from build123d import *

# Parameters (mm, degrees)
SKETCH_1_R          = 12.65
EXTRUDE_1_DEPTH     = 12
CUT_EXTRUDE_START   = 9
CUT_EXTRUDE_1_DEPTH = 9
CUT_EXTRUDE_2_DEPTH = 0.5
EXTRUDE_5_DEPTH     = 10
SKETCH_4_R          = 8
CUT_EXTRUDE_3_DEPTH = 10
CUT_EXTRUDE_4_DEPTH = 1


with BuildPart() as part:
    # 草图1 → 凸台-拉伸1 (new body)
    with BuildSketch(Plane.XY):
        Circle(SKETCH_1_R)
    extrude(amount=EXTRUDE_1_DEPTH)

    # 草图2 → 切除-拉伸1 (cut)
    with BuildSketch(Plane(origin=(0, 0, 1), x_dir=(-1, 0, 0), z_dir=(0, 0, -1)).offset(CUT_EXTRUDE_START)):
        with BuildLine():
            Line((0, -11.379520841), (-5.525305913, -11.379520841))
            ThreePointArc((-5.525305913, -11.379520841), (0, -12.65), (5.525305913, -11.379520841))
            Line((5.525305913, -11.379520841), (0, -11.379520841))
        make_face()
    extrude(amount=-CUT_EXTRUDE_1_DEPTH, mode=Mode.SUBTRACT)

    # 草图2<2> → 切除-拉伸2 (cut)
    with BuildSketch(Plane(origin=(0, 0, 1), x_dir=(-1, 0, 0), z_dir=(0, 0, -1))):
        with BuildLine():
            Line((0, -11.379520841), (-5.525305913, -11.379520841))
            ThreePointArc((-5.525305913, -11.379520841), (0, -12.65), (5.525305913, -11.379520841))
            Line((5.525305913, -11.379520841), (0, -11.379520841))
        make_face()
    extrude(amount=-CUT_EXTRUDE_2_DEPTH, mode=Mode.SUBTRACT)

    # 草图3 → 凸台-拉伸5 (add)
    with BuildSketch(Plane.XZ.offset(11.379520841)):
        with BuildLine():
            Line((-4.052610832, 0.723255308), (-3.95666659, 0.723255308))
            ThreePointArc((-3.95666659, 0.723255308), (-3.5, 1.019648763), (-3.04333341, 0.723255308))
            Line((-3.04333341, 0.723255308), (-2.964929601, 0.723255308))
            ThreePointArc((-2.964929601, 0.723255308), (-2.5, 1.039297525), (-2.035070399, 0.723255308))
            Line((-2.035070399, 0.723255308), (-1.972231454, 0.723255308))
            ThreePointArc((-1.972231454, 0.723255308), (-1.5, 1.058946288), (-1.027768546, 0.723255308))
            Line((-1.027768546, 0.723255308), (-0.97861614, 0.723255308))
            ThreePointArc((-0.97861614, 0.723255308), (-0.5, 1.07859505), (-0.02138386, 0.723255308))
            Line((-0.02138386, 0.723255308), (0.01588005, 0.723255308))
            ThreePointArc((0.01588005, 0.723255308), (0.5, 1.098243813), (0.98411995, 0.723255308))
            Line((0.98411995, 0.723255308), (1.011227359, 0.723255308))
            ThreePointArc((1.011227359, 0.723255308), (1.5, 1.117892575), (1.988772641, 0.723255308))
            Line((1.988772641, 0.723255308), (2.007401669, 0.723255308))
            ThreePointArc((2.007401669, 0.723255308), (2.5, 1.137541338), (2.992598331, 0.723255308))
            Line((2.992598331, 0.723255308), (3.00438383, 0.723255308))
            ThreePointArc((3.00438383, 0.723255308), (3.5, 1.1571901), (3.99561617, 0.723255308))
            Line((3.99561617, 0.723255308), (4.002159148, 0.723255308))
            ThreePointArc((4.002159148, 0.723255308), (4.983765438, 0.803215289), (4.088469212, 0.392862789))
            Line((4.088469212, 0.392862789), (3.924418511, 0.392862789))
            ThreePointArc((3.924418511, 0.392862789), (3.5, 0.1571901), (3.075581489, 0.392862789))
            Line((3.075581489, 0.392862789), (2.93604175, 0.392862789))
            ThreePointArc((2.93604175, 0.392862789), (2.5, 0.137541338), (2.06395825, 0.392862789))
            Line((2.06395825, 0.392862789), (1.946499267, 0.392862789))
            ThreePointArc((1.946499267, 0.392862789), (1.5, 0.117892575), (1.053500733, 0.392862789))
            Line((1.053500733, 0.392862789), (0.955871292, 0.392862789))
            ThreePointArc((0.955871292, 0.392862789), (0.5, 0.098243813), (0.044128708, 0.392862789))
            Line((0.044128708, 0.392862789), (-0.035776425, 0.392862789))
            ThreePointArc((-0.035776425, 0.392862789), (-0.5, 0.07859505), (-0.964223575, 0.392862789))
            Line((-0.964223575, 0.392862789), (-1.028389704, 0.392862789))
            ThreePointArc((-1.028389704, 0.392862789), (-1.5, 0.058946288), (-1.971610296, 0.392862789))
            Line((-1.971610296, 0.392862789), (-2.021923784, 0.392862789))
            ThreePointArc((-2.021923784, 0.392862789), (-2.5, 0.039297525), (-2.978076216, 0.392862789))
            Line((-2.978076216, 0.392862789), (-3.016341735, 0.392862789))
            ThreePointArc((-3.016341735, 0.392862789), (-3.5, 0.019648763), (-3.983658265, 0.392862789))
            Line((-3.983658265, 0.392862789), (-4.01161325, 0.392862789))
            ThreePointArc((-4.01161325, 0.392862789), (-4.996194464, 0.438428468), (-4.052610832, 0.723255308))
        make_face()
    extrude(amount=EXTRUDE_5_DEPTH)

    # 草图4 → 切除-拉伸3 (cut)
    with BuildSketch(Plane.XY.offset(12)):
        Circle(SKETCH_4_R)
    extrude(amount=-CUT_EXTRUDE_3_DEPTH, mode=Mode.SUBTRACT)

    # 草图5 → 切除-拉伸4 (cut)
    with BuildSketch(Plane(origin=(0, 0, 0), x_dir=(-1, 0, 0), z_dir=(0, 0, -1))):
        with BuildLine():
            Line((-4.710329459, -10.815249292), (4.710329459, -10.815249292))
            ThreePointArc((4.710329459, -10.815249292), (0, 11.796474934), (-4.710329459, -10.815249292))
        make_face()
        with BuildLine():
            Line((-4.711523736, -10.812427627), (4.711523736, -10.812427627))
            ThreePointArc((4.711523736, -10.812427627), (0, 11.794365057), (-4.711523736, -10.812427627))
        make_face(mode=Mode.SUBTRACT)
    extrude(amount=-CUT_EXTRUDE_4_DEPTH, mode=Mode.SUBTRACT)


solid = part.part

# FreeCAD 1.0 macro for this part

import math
import FreeCAD as App
import Part
import Sketcher
from FreeCAD import Vector
Q = App.Units.Quantity

doc = App.newDocument("Part")
body = doc.addObject("PartDesign::Body", "Body")

sketch1 = body.newObject("Sketcher::SketchObject", "Sketch")
sketch1.AttachmentSupport = (doc.getObject("XY_Plane"), [""])
sketch1.MapMode = "FlatFace"
sketch1.addGeometry(Part.Circle(Vector(0, 0, 0), Vector(0, 0, 1), 12.65), False)
sketch1.addConstraint(Sketcher.Constraint("Coincident", 0, 3, -1, 1))
sketch1.addConstraint(Sketcher.Constraint("Diameter", 0, Q("25.3 mm")))
pad1 = body.newObject("PartDesign::Pad", "Pad")
pad1.Profile = sketch1
pad1.Length = 12

sketch2 = body.newObject("Sketcher::SketchObject", "Sketch001")
sketch2.AttachmentSupport = (doc.getObject("XY_Plane"), [""])
sketch2.MapMode = "FlatFace"
sketch2.AttachmentOffset = App.Placement(Vector(0, 0, -8), App.Rotation())
sketch2.addGeometry(Part.ArcOfCircle(Part.Circle(Vector(0, 0, 0), Vector(0, 0, 1), 12.65), math.radians(-115.898808), math.radians(-64.101192)), False)
sketch2.addGeometry(Part.LineSegment(Vector(-5.525306, -11.379521, 0), Vector(5.525306, -11.379521, 0)), False)
sketch2.addConstraint(Sketcher.Constraint("Coincident", 0, 1, 1, 1))
sketch2.addConstraint(Sketcher.Constraint("Coincident", 1, 2, 0, 2))
sketch2.addConstraint(Sketcher.Constraint("Horizontal", 1))
sketch2.addConstraint(Sketcher.Constraint("Coincident", 0, 3, -1, 1))
sketch2.addConstraint(Sketcher.Constraint("Radius", 0, Q("12.65 mm")))
sketch2.addConstraint(Sketcher.Constraint("DistanceX", 1, 1, 1, 2, Q("11.050612 mm")))
pocket1 = body.newObject("PartDesign::Pocket", "Pocket")
pocket1.Profile = sketch2
pocket1.Length = 9
pocket1.Reversed = True

sketch3 = body.newObject("Sketcher::SketchObject", "Sketch002")
sketch3.AttachmentSupport = (doc.getObject("XY_Plane"), [""])
sketch3.MapMode = "FlatFace"
sketch3.AttachmentOffset = App.Placement(Vector(0, 0, 1), App.Rotation())
sketch3.addGeometry(Part.ArcOfCircle(Part.Circle(Vector(0, 0, 0), Vector(0, 0, 1), 12.65), math.radians(-115.898808), math.radians(-64.101192)), False)
sketch3.addGeometry(Part.LineSegment(Vector(-5.525306, -11.379521, 0), Vector(5.525306, -11.379521, 0)), False)
sketch3.addConstraint(Sketcher.Constraint("Coincident", 0, 1, 1, 1))
sketch3.addConstraint(Sketcher.Constraint("Coincident", 1, 2, 0, 2))
sketch3.addConstraint(Sketcher.Constraint("Horizontal", 1))
sketch3.addConstraint(Sketcher.Constraint("Coincident", 0, 3, -1, 1))
sketch3.addConstraint(Sketcher.Constraint("Radius", 0, Q("12.65 mm")))
sketch3.addConstraint(Sketcher.Constraint("DistanceX", 1, 1, 1, 2, Q("11.050612 mm")))
pocket2 = body.newObject("PartDesign::Pocket", "Pocket001")
pocket2.Profile = sketch3
pocket2.Length = 0.5
pocket2.Reversed = True

sketch4 = body.newObject("Sketcher::SketchObject", "Sketch003")
sketch4.AttachmentSupport = (doc.getObject("XZ_Plane"), [""])
sketch4.MapMode = "FlatFace"
sketch4.AttachmentOffset = App.Placement(Vector(0, 0, 11.379521), App.Rotation())
sketch4.addGeometry(Part.LineSegment(Vector(-3.956667, 0.723255, 0), Vector(-4.052611, 0.723255, 0)), False)
sketch4.addGeometry(Part.ArcOfCircle(Part.Circle(Vector(-4.5, 0.5, 0), Vector(0, 0, 1), 0.5), math.radians(26.520028), math.radians(347.627037)), False)
sketch4.addGeometry(Part.LineSegment(Vector(-4.011613, 0.392863, 0), Vector(-3.983658, 0.392863, 0)), False)
sketch4.addGeometry(Part.ArcOfCircle(Part.Circle(Vector(-3.5, 0.519649, 0), Vector(0, 0, 1), 0.5), math.radians(-165.311017), math.radians(-14.688983)), False)
sketch4.addGeometry(Part.LineSegment(Vector(-3.016342, 0.392863, 0), Vector(-2.978076, 0.392863, 0)), False)
sketch4.addGeometry(Part.ArcOfCircle(Part.Circle(Vector(-2.5, 0.539298, 0), Vector(0, 0, 1), 0.5), math.radians(-162.970175), math.radians(-17.029825)), False)
sketch4.addGeometry(Part.LineSegment(Vector(-2.021924, 0.392863, 0), Vector(-1.97161, 0.392863, 0)), False)
sketch4.addGeometry(Part.ArcOfCircle(Part.Circle(Vector(-1.5, 0.558946, 0), Vector(0, 0, 1), 0.5), math.radians(-160.599644), math.radians(-19.400356)), False)
sketch4.addGeometry(Part.LineSegment(Vector(-1.02839, 0.392863, 0), Vector(-0.964224, 0.392863, 0)), False)
sketch4.addGeometry(Part.ArcOfCircle(Part.Circle(Vector(-0.5, 0.578595, 0), Vector(0, 0, 1), 0.5), math.radians(-158.194033), math.radians(-21.805967)), False)
sketch4.addGeometry(Part.LineSegment(Vector(-0.035776, 0.392863, 0), Vector(0.044129, 0.392863, 0)), False)
sketch4.addGeometry(Part.ArcOfCircle(Part.Circle(Vector(0.5, 0.598244, 0), Vector(0, 0, 1), 0.5), math.radians(-155.747286), math.radians(-24.252714)), False)
sketch4.addGeometry(Part.LineSegment(Vector(0.955871, 0.392863, 0), Vector(1.053501, 0.392863, 0)), False)
sketch4.addGeometry(Part.ArcOfCircle(Part.Circle(Vector(1.5, 0.617893, 0), Vector(0, 0, 1), 0.5), math.radians(-153.252494), math.radians(-26.747506)), False)
sketch4.addGeometry(Part.LineSegment(Vector(1.946499, 0.392863, 0), Vector(2.063958, 0.392863, 0)), False)
sketch4.addGeometry(Part.ArcOfCircle(Part.Circle(Vector(2.5, 0.637541, 0), Vector(0, 0, 1), 0.5), math.radians(-150.701666), math.radians(-29.298334)), False)
sketch4.addGeometry(Part.LineSegment(Vector(2.936042, 0.392863, 0), Vector(3.075581, 0.392863, 0)), False)
sketch4.addGeometry(Part.ArcOfCircle(Part.Circle(Vector(3.5, 0.65719, 0), Vector(0, 0, 1), 0.5), math.radians(-148.085402), math.radians(-31.914598)), False)
sketch4.addGeometry(Part.LineSegment(Vector(3.924419, 0.392863, 0), Vector(4.088469, 0.392863, 0)), False)
sketch4.addGeometry(Part.ArcOfCircle(Part.Circle(Vector(4.5, 0.676839, 0), Vector(0, 0, 1), 0.5), math.radians(-145.392454), math.radians(174.673398)), False)
sketch4.addGeometry(Part.LineSegment(Vector(4.002159, 0.723255, 0), Vector(3.995616, 0.723255, 0)), False)
sketch4.addGeometry(Part.ArcOfCircle(Part.Circle(Vector(3.5, 0.65719, 0), Vector(0, 0, 1), 0.5), math.radians(7.592718), math.radians(172.407282)), False)
sketch4.addGeometry(Part.LineSegment(Vector(3.004384, 0.723255, 0), Vector(2.992598, 0.723255, 0)), False)
sketch4.addGeometry(Part.ArcOfCircle(Part.Circle(Vector(2.5, 0.637541, 0), Vector(0, 0, 1), 0.5), math.radians(9.870853), math.radians(170.129147)), False)
sketch4.addGeometry(Part.LineSegment(Vector(2.007402, 0.723255, 0), Vector(1.988773, 0.723255, 0)), False)
sketch4.addGeometry(Part.ArcOfCircle(Part.Circle(Vector(1.5, 0.617893, 0), Vector(0, 0, 1), 0.5), math.radians(12.16487), math.radians(167.83513)), False)
sketch4.addGeometry(Part.LineSegment(Vector(1.011227, 0.723255, 0), Vector(0.98412, 0.723255, 0)), False)
sketch4.addGeometry(Part.ArcOfCircle(Part.Circle(Vector(0.5, 0.598244, 0), Vector(0, 0, 1), 0.5), math.radians(14.478873), math.radians(165.521127)), False)
sketch4.addGeometry(Part.LineSegment(Vector(0.01588, 0.723255, 0), Vector(-0.021384, 0.723255, 0)), False)
sketch4.addGeometry(Part.ArcOfCircle(Part.Circle(Vector(-0.5, 0.578595, 0), Vector(0, 0, 1), 0.5), math.radians(16.817281), math.radians(163.182719)), False)
sketch4.addGeometry(Part.LineSegment(Vector(-0.978616, 0.723255, 0), Vector(-1.027769, 0.723255, 0)), False)
sketch4.addGeometry(Part.ArcOfCircle(Part.Circle(Vector(-1.5, 0.558946, 0), Vector(0, 0, 1), 0.5), math.radians(19.184918), math.radians(160.815082)), False)
sketch4.addGeometry(Part.LineSegment(Vector(-1.972231, 0.723255, 0), Vector(-2.03507, 0.723255, 0)), False)
sketch4.addGeometry(Part.ArcOfCircle(Part.Circle(Vector(-2.5, 0.539298, 0), Vector(0, 0, 1), 0.5), math.radians(21.587122), math.radians(158.412878)), False)
sketch4.addGeometry(Part.LineSegment(Vector(-2.96493, 0.723255, 0), Vector(-3.043333, 0.723255, 0)), False)
sketch4.addGeometry(Part.ArcOfCircle(Part.Circle(Vector(-3.5, 0.519649, 0), Vector(0, 0, 1), 0.5), math.radians(24.029885), math.radians(155.970115)), False)
sketch4.addConstraint(Sketcher.Constraint("Coincident", 0, 2, 1, 1))
sketch4.addConstraint(Sketcher.Constraint("Coincident", 1, 2, 2, 1))
sketch4.addConstraint(Sketcher.Constraint("Coincident", 2, 2, 3, 1))
sketch4.addConstraint(Sketcher.Constraint("Coincident", 3, 2, 4, 1))
sketch4.addConstraint(Sketcher.Constraint("Coincident", 4, 2, 5, 1))
sketch4.addConstraint(Sketcher.Constraint("Coincident", 5, 2, 6, 1))
sketch4.addConstraint(Sketcher.Constraint("Coincident", 6, 2, 7, 1))
sketch4.addConstraint(Sketcher.Constraint("Coincident", 7, 2, 8, 1))
sketch4.addConstraint(Sketcher.Constraint("Coincident", 8, 2, 9, 1))
sketch4.addConstraint(Sketcher.Constraint("Coincident", 9, 2, 10, 1))
sketch4.addConstraint(Sketcher.Constraint("Coincident", 10, 2, 11, 1))
sketch4.addConstraint(Sketcher.Constraint("Coincident", 11, 2, 12, 1))
sketch4.addConstraint(Sketcher.Constraint("Coincident", 12, 2, 13, 1))
sketch4.addConstraint(Sketcher.Constraint("Coincident", 13, 2, 14, 1))
sketch4.addConstraint(Sketcher.Constraint("Coincident", 14, 2, 15, 1))
sketch4.addConstraint(Sketcher.Constraint("Coincident", 15, 2, 16, 1))
sketch4.addConstraint(Sketcher.Constraint("Coincident", 16, 2, 17, 1))
sketch4.addConstraint(Sketcher.Constraint("Coincident", 17, 2, 18, 1))
sketch4.addConstraint(Sketcher.Constraint("Coincident", 18, 2, 19, 1))
sketch4.addConstraint(Sketcher.Constraint("Coincident", 19, 2, 20, 1))
sketch4.addConstraint(Sketcher.Constraint("Coincident", 20, 2, 21, 1))
sketch4.addConstraint(Sketcher.Constraint("Coincident", 21, 2, 22, 1))
sketch4.addConstraint(Sketcher.Constraint("Coincident", 22, 2, 23, 1))
sketch4.addConstraint(Sketcher.Constraint("Coincident", 23, 2, 24, 1))
sketch4.addConstraint(Sketcher.Constraint("Coincident", 24, 2, 25, 1))
sketch4.addConstraint(Sketcher.Constraint("Coincident", 25, 2, 26, 1))
sketch4.addConstraint(Sketcher.Constraint("Coincident", 26, 2, 27, 1))
sketch4.addConstraint(Sketcher.Constraint("Coincident", 27, 2, 28, 1))
sketch4.addConstraint(Sketcher.Constraint("Coincident", 28, 2, 29, 1))
sketch4.addConstraint(Sketcher.Constraint("Coincident", 29, 2, 30, 1))
sketch4.addConstraint(Sketcher.Constraint("Coincident", 30, 2, 31, 1))
sketch4.addConstraint(Sketcher.Constraint("Coincident", 31, 2, 32, 1))
sketch4.addConstraint(Sketcher.Constraint("Coincident", 32, 2, 33, 1))
sketch4.addConstraint(Sketcher.Constraint("Coincident", 33, 2, 34, 1))
sketch4.addConstraint(Sketcher.Constraint("Coincident", 34, 2, 35, 1))
sketch4.addConstraint(Sketcher.Constraint("Coincident", 35, 2, 0, 1))
sketch4.addConstraint(Sketcher.Constraint("Horizontal", 0))
sketch4.addConstraint(Sketcher.Constraint("Horizontal", 2))
sketch4.addConstraint(Sketcher.Constraint("Horizontal", 4))
sketch4.addConstraint(Sketcher.Constraint("Horizontal", 6))
sketch4.addConstraint(Sketcher.Constraint("Horizontal", 8))
sketch4.addConstraint(Sketcher.Constraint("Horizontal", 10))
sketch4.addConstraint(Sketcher.Constraint("Horizontal", 12))
sketch4.addConstraint(Sketcher.Constraint("Horizontal", 14))
sketch4.addConstraint(Sketcher.Constraint("Horizontal", 16))
sketch4.addConstraint(Sketcher.Constraint("Horizontal", 18))
sketch4.addConstraint(Sketcher.Constraint("Horizontal", 20))
sketch4.addConstraint(Sketcher.Constraint("Horizontal", 22))
sketch4.addConstraint(Sketcher.Constraint("Horizontal", 24))
sketch4.addConstraint(Sketcher.Constraint("Horizontal", 26))
sketch4.addConstraint(Sketcher.Constraint("Horizontal", 28))
sketch4.addConstraint(Sketcher.Constraint("Horizontal", 30))
sketch4.addConstraint(Sketcher.Constraint("Horizontal", 32))
sketch4.addConstraint(Sketcher.Constraint("Horizontal", 34))
sketch4.addConstraint(Sketcher.Constraint("Coincident", 21, 3, 17, 3))
sketch4.addConstraint(Sketcher.Constraint("Coincident", 23, 3, 15, 3))
sketch4.addConstraint(Sketcher.Constraint("Coincident", 25, 3, 13, 3))
sketch4.addConstraint(Sketcher.Constraint("Coincident", 27, 3, 11, 3))
sketch4.addConstraint(Sketcher.Constraint("Coincident", 29, 3, 9, 3))
sketch4.addConstraint(Sketcher.Constraint("Coincident", 31, 3, 7, 3))
sketch4.addConstraint(Sketcher.Constraint("Coincident", 33, 3, 5, 3))
sketch4.addConstraint(Sketcher.Constraint("Coincident", 35, 3, 3, 3))
sketch4.addConstraint(Sketcher.Constraint("Equal", 1, 3))
sketch4.addConstraint(Sketcher.Constraint("Equal", 3, 5))
sketch4.addConstraint(Sketcher.Constraint("Equal", 5, 7))
sketch4.addConstraint(Sketcher.Constraint("Equal", 7, 9))
sketch4.addConstraint(Sketcher.Constraint("Equal", 9, 11))
sketch4.addConstraint(Sketcher.Constraint("Equal", 11, 13))
sketch4.addConstraint(Sketcher.Constraint("Equal", 13, 15))
sketch4.addConstraint(Sketcher.Constraint("Equal", 15, 17))
sketch4.addConstraint(Sketcher.Constraint("Equal", 17, 19))
sketch4.addConstraint(Sketcher.Constraint("Equal", 19, 21))
sketch4.addConstraint(Sketcher.Constraint("Equal", 21, 23))
sketch4.addConstraint(Sketcher.Constraint("Equal", 23, 25))
sketch4.addConstraint(Sketcher.Constraint("Equal", 25, 27))
sketch4.addConstraint(Sketcher.Constraint("Equal", 27, 29))
sketch4.addConstraint(Sketcher.Constraint("Equal", 29, 31))
sketch4.addConstraint(Sketcher.Constraint("Equal", 31, 33))
sketch4.addConstraint(Sketcher.Constraint("Equal", 33, 35))
sketch4.addConstraint(Sketcher.Constraint("Horizontal", 2, 2, 3, 2))
sketch4.addConstraint(Sketcher.Constraint("Horizontal", 4, 2, 5, 2))
sketch4.addConstraint(Sketcher.Constraint("Horizontal", 6, 2, 7, 2))
sketch4.addConstraint(Sketcher.Constraint("Horizontal", 8, 2, 9, 2))
sketch4.addConstraint(Sketcher.Constraint("Horizontal", 10, 2, 11, 2))
sketch4.addConstraint(Sketcher.Constraint("Horizontal", 12, 2, 13, 2))
sketch4.addConstraint(Sketcher.Constraint("Horizontal", 14, 2, 15, 2))
sketch4.addConstraint(Sketcher.Constraint("Horizontal", 16, 2, 17, 2))
sketch4.addConstraint(Sketcher.Constraint("Horizontal", 0, 2, 19, 2))
sketch4.addConstraint(Sketcher.Constraint("Horizontal", 20, 2, 21, 2))
sketch4.addConstraint(Sketcher.Constraint("Horizontal", 22, 2, 23, 2))
sketch4.addConstraint(Sketcher.Constraint("Horizontal", 24, 2, 25, 2))
sketch4.addConstraint(Sketcher.Constraint("Horizontal", 26, 2, 27, 2))
sketch4.addConstraint(Sketcher.Constraint("Horizontal", 28, 2, 29, 2))
sketch4.addConstraint(Sketcher.Constraint("Horizontal", 30, 2, 31, 2))
sketch4.addConstraint(Sketcher.Constraint("Horizontal", 32, 2, 33, 2))
sketch4.addConstraint(Sketcher.Constraint("Radius", 1, Q("0.5 mm")))
sketch4.addConstraint(Sketcher.Constraint("DistanceX", 1, 3, 3, 3, Q("1 mm")))
sketch4.addConstraint(Sketcher.Constraint("DistanceX", 3, 3, 5, 3, Q("1 mm")))
sketch4.addConstraint(Sketcher.Constraint("DistanceX", 5, 3, 7, 3, Q("1 mm")))
sketch4.addConstraint(Sketcher.Constraint("DistanceX", 7, 3, 9, 3, Q("1 mm")))
sketch4.addConstraint(Sketcher.Constraint("DistanceX", 9, 3, 11, 3, Q("1 mm")))
sketch4.addConstraint(Sketcher.Constraint("DistanceX", 11, 3, 13, 3, Q("1 mm")))
sketch4.addConstraint(Sketcher.Constraint("DistanceX", 13, 3, 15, 3, Q("1 mm")))
sketch4.addConstraint(Sketcher.Constraint("DistanceX", 15, 3, 17, 3, Q("1 mm")))
sketch4.addConstraint(Sketcher.Constraint("DistanceX", 17, 3, 19, 3, Q("1 mm")))
sketch4.addConstraint(Sketcher.Constraint("DistanceX", 1, 3, -1, 1, Q("4.5 mm")))
sketch4.addConstraint(Sketcher.Constraint("DistanceY", -1, 1, 1, 3, Q("0.5 mm")))
sketch4.addConstraint(Sketcher.Constraint("DistanceX", 12, 2, 13, 2, Q("0.892999 mm")))
sketch4.addConstraint(Sketcher.Constraint("DistanceX", 12, 1, 12, 2, Q("0.097629 mm")))
sketch4.addConstraint(Sketcher.Constraint("DistanceX", 14, 1, 14, 2, Q("0.117459 mm")))
sketch4.addConstraint(Sketcher.Constraint("DistanceX", 16, 1, 16, 2, Q("0.13954 mm")))
sketch4.addConstraint(Sketcher.Constraint("DistanceX", 18, 1, 18, 2, Q("0.164051 mm")))
sketch4.addConstraint(Sketcher.Constraint("DistanceX", 24, 2, 24, 1, Q("0.018629 mm")))
sketch4.addConstraint(Sketcher.Constraint("DistanceX", 32, 2, 32, 1, Q("0.062839 mm")))
sketch4.addConstraint(Sketcher.Constraint("DistanceX", 0, 2, 0, 1, Q("0.095944 mm")))
sketch4.addConstraint(Sketcher.Constraint("DistanceX", 2, 1, 2, 2, Q("0.027955 mm")))
sketch4.addConstraint(Sketcher.Constraint("DistanceX", 4, 1, 4, 2, Q("0.038266 mm")))
sketch4.addConstraint(Sketcher.Constraint("DistanceX", 8, 1, 8, 2, Q("0.064166 mm")))
pad2 = body.newObject("PartDesign::Pad", "Pad001")
pad2.Profile = sketch4
pad2.Length = 10

sketch5 = body.newObject("Sketcher::SketchObject", "Sketch004")
sketch5.AttachmentSupport = (doc.getObject("XY_Plane"), [""])
sketch5.MapMode = "FlatFace"
sketch5.AttachmentOffset = App.Placement(Vector(0, 0, 12), App.Rotation())
sketch5.addGeometry(Part.Circle(Vector(0, 0, 0), Vector(0, 0, 1), 8), False)
sketch5.addConstraint(Sketcher.Constraint("Coincident", 0, 3, -1, 1))
sketch5.addConstraint(Sketcher.Constraint("Diameter", 0, Q("16 mm")))
pocket3 = body.newObject("PartDesign::Pocket", "Pocket002")
pocket3.Profile = sketch5
pocket3.Length = 10

sketch6 = body.newObject("Sketcher::SketchObject", "Sketch005")
sketch6.AttachmentSupport = (doc.getObject("XY_Plane"), [""])
sketch6.MapMode = "FlatFace"
sketch6.addGeometry(Part.LineSegment(Vector(4.710329, -10.815249, 0), Vector(-4.710329, -10.815249, 0)), False)
sketch6.addGeometry(Part.ArcOfCircle(Part.Circle(Vector(0, 0, 0), Vector(0, 0, 1), 11.796475), math.radians(-66.46559), math.radians(246.46559)), False)
sketch6.addGeometry(Part.LineSegment(Vector(-4.711524, -10.812428, 0), Vector(4.711524, -10.812428, 0)), False)
sketch6.addGeometry(Part.ArcOfCircle(Part.Circle(Vector(0, 0, 0), Vector(0, 0, 1), 11.794365), math.radians(-66.454798), math.radians(246.454798)), False)
sketch6.addConstraint(Sketcher.Constraint("Coincident", 0, 1, 1, 1))
sketch6.addConstraint(Sketcher.Constraint("Coincident", 1, 2, 0, 2))
sketch6.addConstraint(Sketcher.Constraint("Coincident", 2, 1, 3, 2))
sketch6.addConstraint(Sketcher.Constraint("Coincident", 3, 1, 2, 2))
sketch6.addConstraint(Sketcher.Constraint("Horizontal", 0))
sketch6.addConstraint(Sketcher.Constraint("Horizontal", 2))
sketch6.addConstraint(Sketcher.Constraint("Coincident", 1, 3, -1, 1))
sketch6.addConstraint(Sketcher.Constraint("Coincident", 3, 3, -1, 1))
sketch6.addConstraint(Sketcher.Constraint("Radius", 1, Q("11.796475 mm")))
sketch6.addConstraint(Sketcher.Constraint("Radius", 3, Q("11.794365 mm")))
sketch6.addConstraint(Sketcher.Constraint("DistanceX", 0, 2, 0, 1, Q("9.420659 mm")))
sketch6.addConstraint(Sketcher.Constraint("DistanceX", 2, 1, 2, 2, Q("9.423047 mm")))
pocket4 = body.newObject("PartDesign::Pocket", "Pocket003")
pocket4.Profile = sketch6
pocket4.Length = 1
pocket4.Reversed = True

doc.recompute()
